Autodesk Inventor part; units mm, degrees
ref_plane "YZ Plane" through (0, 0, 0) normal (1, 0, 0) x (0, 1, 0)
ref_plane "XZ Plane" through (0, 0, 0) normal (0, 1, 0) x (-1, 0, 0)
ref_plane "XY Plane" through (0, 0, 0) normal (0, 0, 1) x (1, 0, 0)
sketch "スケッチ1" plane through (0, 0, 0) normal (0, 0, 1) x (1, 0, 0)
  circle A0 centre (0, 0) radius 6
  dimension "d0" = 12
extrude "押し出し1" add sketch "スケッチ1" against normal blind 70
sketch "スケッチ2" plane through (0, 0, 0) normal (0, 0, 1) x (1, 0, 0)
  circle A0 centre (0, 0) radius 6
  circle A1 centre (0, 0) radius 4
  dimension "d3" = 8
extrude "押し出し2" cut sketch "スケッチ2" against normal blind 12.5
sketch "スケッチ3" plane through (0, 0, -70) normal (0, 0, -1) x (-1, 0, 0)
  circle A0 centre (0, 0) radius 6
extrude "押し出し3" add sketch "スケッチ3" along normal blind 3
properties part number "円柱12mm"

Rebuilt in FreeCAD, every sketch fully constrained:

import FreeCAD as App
import Part
import Sketcher
Q = App.Units.Quantity

doc = App.newDocument("Part")
params = doc.addObject("Spreadsheet::Sheet", "Params")
for row, (alias, value) in enumerate([
    ("sketch1_diameter", "12 mm"),
    ("pad1_length", "70 mm"),
    ("sketch2_diameter", "8 mm"),
    ("sketch2_diameter2", "12 mm"),
    ("pocket1_length", "12.5 mm"),
    ("sketch3_diameter", "12 mm"),
    ("pad2_length", "3 mm"),
], start=1):
    params.set(f"A{row}", alias)
    params.set(f"B{row}", "=" + value)
    params.setAlias(f"B{row}", alias)

body = doc.addObject("PartDesign::Body", "Body")

sketch1 = doc.addObject("Sketcher::SketchObject", "Sketch")
body.addObject(sketch1)
sketch1.AttachmentSupport = (doc.XY_Plane, [""])
sketch1.MapMode = "FlatFace"
sketch1.addGeometry(Part.Circle(App.Vector(0, 0, 0), App.Vector(0, 0, 1), 6), False)
sketch1.addConstraint([
    Sketcher.Constraint("Coincident", 0, 3, -1, 1),
    Sketcher.Constraint("Diameter", 0, Q("12 mm")),
])
sketch1.setExpression("Constraints[1]", "Params.sketch1_diameter")
pad1 = doc.addObject("PartDesign::Pad", "Pad")
body.addObject(pad1)
pad1.Profile = sketch1
pad1.setExpression("Length", "Params.pad1_length")
pad1.Reversed = True

sketch2 = doc.addObject("Sketcher::SketchObject", "Sketch001")
body.addObject(sketch2)
sketch2.AttachmentSupport = (doc.XY_Plane, [""])
sketch2.MapMode = "FlatFace"
sketch2.addGeometry([
    Part.Circle(App.Vector(0, 0, 0), App.Vector(0, 0, 1), 6),
    Part.Circle(App.Vector(0, 0, 0), App.Vector(0, 0, 1), 4),
], False)
sketch2.addConstraint([
    Sketcher.Constraint("Coincident", 0, 3, -1, 1),
    Sketcher.Constraint("Coincident", 1, 3, -1, 1),
    Sketcher.Constraint("Diameter", 1, Q("8 mm")),
    Sketcher.Constraint("Diameter", 0, Q("12 mm")),
])
sketch2.setExpression("Constraints[2]", "Params.sketch2_diameter")
sketch2.setExpression("Constraints[3]", "Params.sketch2_diameter2")
pocket1 = doc.addObject("PartDesign::Pocket", "Pocket")
body.addObject(pocket1)
pocket1.Profile = sketch2
pocket1.setExpression("Length", "Params.pocket1_length")

sketch3 = doc.addObject("Sketcher::SketchObject", "Sketch002")
body.addObject(sketch3)
sketch3.AttachmentSupport = (doc.XY_Plane, [""])
sketch3.MapMode = "FlatFace"
sketch3.AttachmentOffset = App.Placement(App.Vector(0, 0, -70), App.Rotation())
sketch3.addGeometry(Part.Circle(App.Vector(0, 0, 0), App.Vector(0, 0, 1), 6), False)
sketch3.addConstraint([
    Sketcher.Constraint("Coincident", 0, 3, -1, 1),
    Sketcher.Constraint("Diameter", 0, Q("12 mm")),
])
sketch3.setExpression("Constraints[1]", "Params.sketch3_diameter")
pad2 = doc.addObject("PartDesign::Pad", "Pad001")
body.addObject(pad2)
pad2.Profile = sketch3
pad2.setExpression("Length", "Params.pad2_length")
pad2.Reversed = True

doc.recompute()
